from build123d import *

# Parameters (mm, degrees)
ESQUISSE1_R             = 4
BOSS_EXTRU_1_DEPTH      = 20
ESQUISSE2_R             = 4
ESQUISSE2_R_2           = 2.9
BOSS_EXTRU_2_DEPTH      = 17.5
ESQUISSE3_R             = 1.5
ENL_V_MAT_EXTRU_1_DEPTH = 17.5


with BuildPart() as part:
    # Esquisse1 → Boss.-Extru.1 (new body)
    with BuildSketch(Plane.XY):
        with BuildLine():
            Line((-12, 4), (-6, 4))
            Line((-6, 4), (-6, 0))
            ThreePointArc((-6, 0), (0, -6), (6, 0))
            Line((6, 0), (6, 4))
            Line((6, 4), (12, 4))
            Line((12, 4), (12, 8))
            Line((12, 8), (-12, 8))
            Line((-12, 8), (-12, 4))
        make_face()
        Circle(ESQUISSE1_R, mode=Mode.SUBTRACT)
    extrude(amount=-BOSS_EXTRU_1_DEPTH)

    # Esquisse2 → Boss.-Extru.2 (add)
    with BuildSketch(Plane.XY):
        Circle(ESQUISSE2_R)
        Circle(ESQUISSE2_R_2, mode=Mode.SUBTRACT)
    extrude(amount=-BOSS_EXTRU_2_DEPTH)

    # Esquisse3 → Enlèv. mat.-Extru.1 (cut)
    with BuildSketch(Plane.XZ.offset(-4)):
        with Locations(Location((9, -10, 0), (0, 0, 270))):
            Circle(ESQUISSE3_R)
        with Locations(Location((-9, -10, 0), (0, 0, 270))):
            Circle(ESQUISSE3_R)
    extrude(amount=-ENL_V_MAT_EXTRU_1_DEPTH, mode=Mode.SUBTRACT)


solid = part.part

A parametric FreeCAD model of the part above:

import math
import FreeCAD as App
import Part
import Sketcher

doc = App.newDocument("Part")
body = doc.addObject("PartDesign::Body", "Body")

# Sketch on XY plane
sketch1 = body.newObject("Sketcher::SketchObject", "Sketch")
sketch1.AttachmentSupport = (doc.getObject("XY_Plane"), [""])
sketch1.MapMode = "FlatFace"
sketch1.addGeometry([
    Part.LineSegment(App.Vector(-12, 4, 0), App.Vector(-6, 4, 0)),  # 0
    Part.LineSegment(App.Vector(-6, 4, 0), App.Vector(-6, 0, 0)),  # 1
    Part.ArcOfCircle(Part.Circle(App.Vector(0, 0, 0), App.Vector(0, 0, 1), 6), math.radians(180), math.radians(360)),  # 2
    Part.LineSegment(App.Vector(6, 0, 0), App.Vector(6, 4, 0)),  # 3
    Part.LineSegment(App.Vector(6, 4, 0), App.Vector(12, 4, 0)),  # 4
    Part.LineSegment(App.Vector(12, 4, 0), App.Vector(12, 8, 0)),  # 5
    Part.LineSegment(App.Vector(12, 8, 0), App.Vector(-12, 8, 0)),  # 6
    Part.LineSegment(App.Vector(-12, 8, 0), App.Vector(-12, 4, 0)),  # 7
    Part.Circle(App.Vector(0, 0, 0), App.Vector(0, 0, 1), 4),  # 8
], False)
sketch1.addConstraint([
    Sketcher.Constraint("Coincident", 0, 2, 1, 1),
    Sketcher.Constraint("Tangent", 1, 2, 2, 1),
    Sketcher.Constraint("Tangent", 2, 2, 3, 1),
    Sketcher.Constraint("Coincident", 3, 2, 4, 1),
    Sketcher.Constraint("Coincident", 4, 2, 5, 1),
    Sketcher.Constraint("Coincident", 5, 2, 6, 1),
    Sketcher.Constraint("Coincident", 6, 2, 7, 1),
    Sketcher.Constraint("Coincident", 7, 2, 0, 1),
    Sketcher.Constraint("Horizontal", 0),
    Sketcher.Constraint("Vertical", 1),
    Sketcher.Constraint("Vertical", 3),
    Sketcher.Constraint("Horizontal", 4),
    Sketcher.Constraint("Vertical", 5),
    Sketcher.Constraint("Horizontal", 6),
    Sketcher.Constraint("Vertical", 7),
    Sketcher.Constraint("Coincident", 2, 3, -1, 1),
    Sketcher.Constraint("Coincident", 8, 3, -1, 1),
    Sketcher.Constraint("Symmetric", 4, 2, 7, 2, -2),
    Sketcher.Constraint("Equal", 3, 5),
    Sketcher.Constraint("Diameter", 8, 8.0),
    Sketcher.Constraint("Radius", 2, 6.0),
    Sketcher.Constraint("DistanceX", 0, 1, 0, 2, 6.0),
    Sketcher.Constraint("DistanceY", 1, 2, 1, 1, 4.0),
])
pad1 = body.newObject("PartDesign::Pad", "Pad")
pad1.Profile = sketch1
pad1.Length = 20
pad1.Reversed = True

# Sketch on XY plane
sketch2 = body.newObject("Sketcher::SketchObject", "Sketch001")
sketch2.AttachmentSupport = (doc.getObject("XY_Plane"), [""])
sketch2.MapMode = "FlatFace"
sketch2.addGeometry([
    Part.Circle(App.Vector(0, 0, 0), App.Vector(0, 0, 1), 4),
    Part.Circle(App.Vector(0, 0, 0), App.Vector(0, 0, 1), 2.9),
], False)
sketch2.addConstraint([
    Sketcher.Constraint("Coincident", 0, 3, -1, 1),
    Sketcher.Constraint("Coincident", 1, 3, -1, 1),
    Sketcher.Constraint("Diameter", 0, 8.0),
    Sketcher.Constraint("Diameter", 1, 5.8),
])
pad2 = body.newObject("PartDesign::Pad", "Pad001")
pad2.Profile = sketch2
pad2.Length = 17.5
pad2.Reversed = True

# Sketch on XZ plane
sketch3 = body.newObject("Sketcher::SketchObject", "Sketch002")
sketch3.AttachmentSupport = (doc.getObject("XZ_Plane"), [""])
sketch3.MapMode = "FlatFace"
sketch3.AttachmentOffset = App.Placement(App.Vector(0, 0, -4), App.Rotation())
sketch3.addGeometry([
    Part.Circle(App.Vector(9, -10, 0), App.Vector(0, 0, 1), 1.5),
    Part.Circle(App.Vector(-9, -10, 0), App.Vector(0, 0, 1), 1.5),
], False)
sketch3.addConstraint([
    Sketcher.Constraint("Equal", 0, 1),
    Sketcher.Constraint("Symmetric", 0, 3, 1, 3, -2),
    Sketcher.Constraint("Diameter", 0, 3.0),
    Sketcher.Constraint("DistanceX", -1, 1, 0, 3, 9.0),
    Sketcher.Constraint("DistanceY", 0, 3, -1, 1, 10.0),
])
pocket1 = body.newObject("PartDesign::Pocket", "Pocket")
pocket1.Profile = sketch3
pocket1.Length = 17.5

doc.recompute()
